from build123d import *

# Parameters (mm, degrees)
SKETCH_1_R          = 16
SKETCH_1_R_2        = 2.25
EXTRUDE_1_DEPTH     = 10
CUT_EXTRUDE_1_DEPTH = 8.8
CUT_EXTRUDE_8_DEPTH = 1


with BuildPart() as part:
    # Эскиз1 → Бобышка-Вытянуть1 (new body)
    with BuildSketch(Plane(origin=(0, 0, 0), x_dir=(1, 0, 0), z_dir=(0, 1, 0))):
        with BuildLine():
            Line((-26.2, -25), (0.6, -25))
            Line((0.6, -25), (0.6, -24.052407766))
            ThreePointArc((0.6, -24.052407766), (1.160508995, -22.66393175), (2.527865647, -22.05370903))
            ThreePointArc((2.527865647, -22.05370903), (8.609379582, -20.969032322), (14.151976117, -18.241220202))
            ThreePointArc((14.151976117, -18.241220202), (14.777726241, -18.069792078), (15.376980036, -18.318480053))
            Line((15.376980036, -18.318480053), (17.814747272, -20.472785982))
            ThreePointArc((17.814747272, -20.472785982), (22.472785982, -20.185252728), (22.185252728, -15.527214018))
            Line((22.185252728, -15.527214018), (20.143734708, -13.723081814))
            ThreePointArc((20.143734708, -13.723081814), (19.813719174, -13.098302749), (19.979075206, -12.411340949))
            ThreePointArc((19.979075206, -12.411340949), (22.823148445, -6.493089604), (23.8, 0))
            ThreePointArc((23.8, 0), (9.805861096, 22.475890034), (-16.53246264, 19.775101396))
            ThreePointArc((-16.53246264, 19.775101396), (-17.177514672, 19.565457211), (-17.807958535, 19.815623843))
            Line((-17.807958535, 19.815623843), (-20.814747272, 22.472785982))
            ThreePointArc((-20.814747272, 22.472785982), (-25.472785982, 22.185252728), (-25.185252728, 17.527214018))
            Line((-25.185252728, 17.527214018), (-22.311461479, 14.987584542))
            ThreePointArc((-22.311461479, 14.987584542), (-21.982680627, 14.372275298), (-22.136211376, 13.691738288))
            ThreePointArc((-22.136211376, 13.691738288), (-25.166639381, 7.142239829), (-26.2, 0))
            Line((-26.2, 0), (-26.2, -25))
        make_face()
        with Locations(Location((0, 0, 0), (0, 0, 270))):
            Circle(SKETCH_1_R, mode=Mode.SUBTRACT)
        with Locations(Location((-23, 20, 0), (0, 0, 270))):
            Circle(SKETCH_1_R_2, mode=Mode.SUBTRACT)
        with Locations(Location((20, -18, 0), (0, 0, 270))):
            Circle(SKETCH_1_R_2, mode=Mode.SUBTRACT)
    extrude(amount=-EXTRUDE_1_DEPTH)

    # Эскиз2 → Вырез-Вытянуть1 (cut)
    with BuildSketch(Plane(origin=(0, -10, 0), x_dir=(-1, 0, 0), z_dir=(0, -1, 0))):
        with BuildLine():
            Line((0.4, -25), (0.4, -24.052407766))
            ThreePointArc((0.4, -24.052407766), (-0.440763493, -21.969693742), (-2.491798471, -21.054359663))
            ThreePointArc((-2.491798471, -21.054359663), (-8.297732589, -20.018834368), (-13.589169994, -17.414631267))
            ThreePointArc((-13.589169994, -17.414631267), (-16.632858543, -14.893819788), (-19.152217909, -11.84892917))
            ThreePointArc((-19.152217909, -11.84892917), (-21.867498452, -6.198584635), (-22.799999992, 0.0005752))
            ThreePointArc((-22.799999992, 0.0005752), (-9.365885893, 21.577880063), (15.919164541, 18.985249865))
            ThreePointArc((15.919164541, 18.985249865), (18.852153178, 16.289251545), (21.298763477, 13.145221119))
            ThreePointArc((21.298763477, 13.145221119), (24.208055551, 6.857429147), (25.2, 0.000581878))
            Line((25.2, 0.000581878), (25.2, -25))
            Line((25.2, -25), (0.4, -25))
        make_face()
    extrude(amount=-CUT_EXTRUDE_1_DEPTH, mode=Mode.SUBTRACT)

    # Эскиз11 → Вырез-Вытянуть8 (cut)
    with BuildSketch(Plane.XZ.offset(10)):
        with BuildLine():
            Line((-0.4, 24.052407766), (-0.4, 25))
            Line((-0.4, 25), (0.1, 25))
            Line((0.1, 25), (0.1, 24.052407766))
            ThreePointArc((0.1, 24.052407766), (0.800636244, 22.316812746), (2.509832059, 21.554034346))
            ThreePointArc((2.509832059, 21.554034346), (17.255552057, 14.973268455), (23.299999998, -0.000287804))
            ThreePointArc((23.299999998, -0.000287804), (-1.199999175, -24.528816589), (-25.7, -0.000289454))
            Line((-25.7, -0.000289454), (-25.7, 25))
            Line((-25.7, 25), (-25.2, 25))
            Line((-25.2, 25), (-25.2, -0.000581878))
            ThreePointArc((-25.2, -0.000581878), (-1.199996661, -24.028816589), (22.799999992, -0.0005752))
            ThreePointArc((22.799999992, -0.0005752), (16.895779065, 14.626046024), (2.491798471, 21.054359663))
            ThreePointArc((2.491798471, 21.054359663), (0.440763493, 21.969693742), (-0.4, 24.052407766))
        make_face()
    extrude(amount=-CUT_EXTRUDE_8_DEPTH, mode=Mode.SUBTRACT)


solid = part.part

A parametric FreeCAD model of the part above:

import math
import FreeCAD as App
import Part
import Sketcher
Q = App.Units.Quantity

doc = App.newDocument("Part")
body = doc.addObject("PartDesign::Body", "Body")

# Sketch on XZ plane
sketch1 = body.newObject("Sketcher::SketchObject", "Sketch")
sketch1.AttachmentSupport = (doc.getObject("XZ_Plane"), [""])
sketch1.MapMode = "FlatFace"
sketch1.addGeometry([
    Part.LineSegment(App.Vector(-26.2, 25, 0), App.Vector(0.6, 25, 0)),  # 0
    Part.LineSegment(App.Vector(0.6, 25, 0), App.Vector(0.6, 24.1, 0)),  # 1
    Part.ArcOfCircle(Part.Circle(App.Vector(2.6, 24.1, 0), App.Vector(0, 0, 1), 2), math.radians(180), math.radians(268)),  # 2
    Part.ArcOfCircle(Part.Circle(App.Vector(1.7, 0, 0), App.Vector(0, 0, 1), 22.1), math.radians(56), math.radians(88)),  # 3
    Part.ArcOfCircle(Part.Circle(App.Vector(14.7, 19.1, 0), App.Vector(0, 0, 1), 1), math.radians(-124), math.radians(-49)),  # 4
    Part.LineSegment(App.Vector(15.4, 18.3, 0), App.Vector(17.8, 20.5, 0)),  # 5
    Part.ArcOfCircle(Part.Circle(App.Vector(20, 18, 0), App.Vector(0, 0, 1), 3.3), math.radians(-49), math.radians(131)),  # 6
    Part.LineSegment(App.Vector(22.2, 15.5, 0), App.Vector(20.1, 13.7, 0)),  # 7
    Part.ArcOfCircle(Part.Circle(App.Vector(20.8, 13, 0), App.Vector(0, 0, 1), 1), math.radians(131), math.radians(214)),  # 8
    Part.ArcOfCircle(Part.Circle(App.Vector(1.7, 0, 0), App.Vector(0, 0, 1), 22.1), math.radians(0), math.radians(34)),  # 9
    Part.ArcOfCircle(Part.Circle(App.Vector(-1.2, 0, 0), App.Vector(0, 0, 1), 25), math.radians(-128), math.radians(0)),  # 10
    Part.ArcOfCircle(Part.Circle(App.Vector(-17.1, -20.6, 0), App.Vector(0, 0, 1), 1), math.radians(52), math.radians(131)),  # 11
    Part.LineSegment(App.Vector(-17.8, -19.8, 0), App.Vector(-20.8, -22.5, 0)),  # 12
    Part.ArcOfCircle(Part.Circle(App.Vector(-23, -20, 0), App.Vector(0, 0, 1), 3.3), math.radians(131), math.radians(311)),  # 13
    Part.LineSegment(App.Vector(-25.2, -17.5, 0), App.Vector(-22.3, -15, 0)),  # 14
    Part.ArcOfCircle(Part.Circle(App.Vector(-23, -14.2, 0), App.Vector(0, 0, 1), 1), math.radians(-49), math.radians(33)),  # 15
    Part.ArcOfCircle(Part.Circle(App.Vector(-1.2, 0, 0), App.Vector(0, 0, 1), 25), math.radians(180), math.radians(213)),  # 16
    Part.LineSegment(App.Vector(-26.2, 0, 0), App.Vector(-26.2, 25, 0)),  # 17
    Part.Circle(App.Vector(20, 18, 0), App.Vector(0, 0, 1), 2.2),  # 18
    Part.Circle(App.Vector(0, 0, 0), App.Vector(0, 0, 1), 16),  # 19
    Part.Circle(App.Vector(-23, -20, 0), App.Vector(0, 0, 1), 2.2),  # 20
], False)
sketch1.addConstraint([
    Sketcher.Constraint("Coincident", 0, 2, 1, 1),
    Sketcher.Constraint("Tangent", 1, 2, 2, 1),
    Sketcher.Constraint("Tangent", 2, 2, 3, 2),
    Sketcher.Constraint("Tangent", 3, 1, 4, 1),
    Sketcher.Constraint("Tangent", 4, 2, 5, 1),
    Sketcher.Constraint("Tangent", 5, 2, 6, 2),
    Sketcher.Constraint("Tangent", 6, 1, 7, 1),
    Sketcher.Constraint("Tangent", 7, 2, 8, 1),
    Sketcher.Constraint("Tangent", 8, 2, 9, 2),
    Sketcher.Constraint("Coincident", 9, 1, 10, 2),
    Sketcher.Constraint("Tangent", 10, 1, 11, 1),
    Sketcher.Constraint("Tangent", 11, 2, 12, 1),
    Sketcher.Constraint("Tangent", 12, 2, 13, 2),
    Sketcher.Constraint("Tangent", 13, 1, 14, 1),
    Sketcher.Constraint("Tangent", 14, 2, 15, 1),
    Sketcher.Constraint("Tangent", 15, 2, 16, 2),
    Sketcher.Constraint("Coincident", 16, 1, 17, 1),
    Sketcher.Constraint("Coincident", 17, 2, 0, 1),
    Sketcher.Constraint("Horizontal", 0),
    Sketcher.Constraint("Vertical", 1),
    Sketcher.Constraint("Vertical", 17),
    Sketcher.Constraint("Coincident", 19, 3, -1, 1),
    Sketcher.Constraint("Coincident", 9, 3, 3, 3),
    Sketcher.Constraint("Coincident", 16, 3, 10, 3),
    Sketcher.Constraint("Coincident", 18, 3, 6, 3),
    Sketcher.Constraint("Coincident", 20, 3, 13, 3),
    Sketcher.Constraint("Equal", 4, 8),
    Sketcher.Constraint("Equal", 3, 9),
    Sketcher.Constraint("Equal", 8, 11),
    Sketcher.Constraint("Equal", 6, 13),
    Sketcher.Constraint("Equal", 11, 15),
    Sketcher.Constraint("Equal", 10, 16),
    Sketcher.Constraint("Equal", 18, 20),
    Sketcher.Constraint("PointOnObject", 3, 3, -1),
    Sketcher.Constraint("PointOnObject", 9, 1, -1),
    Sketcher.Constraint("PointOnObject", 16, 1, -1),
    Sketcher.Constraint("Parallel", 5, 7),
    Sketcher.Constraint("Parallel", 7, 12),
    Sketcher.Constraint("Parallel", 12, 14),
    Sketcher.Constraint("Diameter", 19, Q("32 mm")),
    Sketcher.Constraint("Radius", 2, Q("2 mm")),
    Sketcher.Constraint("Radius", 4, Q("1 mm")),
    Sketcher.Constraint("Diameter", 18, Q("4.5 mm")),
    Sketcher.Constraint("Radius", 6, Q("3.3 mm")),
    Sketcher.Constraint("DistanceY", 17, 1, 17, 2, Q("25 mm")),
    Sketcher.Constraint("DistanceX", 0, 1, 0, 2, Q("26.8 mm")),
    Sketcher.Constraint("DistanceX", -1, 1, 6, 3, Q("20 mm")),
    Sketcher.Constraint("DistanceY", -1, 1, 6, 3, Q("18 mm")),
    Sketcher.Constraint("DistanceX", 13, 3, -1, 1, Q("23 mm")),
    Sketcher.Constraint("DistanceY", 13, 3, -1, 1, Q("20 mm")),
    Sketcher.Constraint("DistanceX", -1, 1, 2, 3, Q("2.6 mm")),
    Sketcher.Constraint("DistanceX", 10, 3, -1, 1, Q("1.2 mm")),
    Sketcher.Constraint("Radius", 3, Q("22.068067 mm")),
    Sketcher.Constraint("DistanceX", 3, 3, 8, 3, Q("19.074 mm")),
    Sketcher.Constraint("DistanceY", 10, 3, -1, 1, Q("0.0288 mm")),
])
pad1 = body.newObject("PartDesign::Pad", "Pad")
pad1.Profile = sketch1
pad1.Length = 10

# Sketch on XZ plane
sketch2 = body.newObject("Sketcher::SketchObject", "Sketch001")
sketch2.AttachmentSupport = (doc.getObject("XZ_Plane"), [""])
sketch2.MapMode = "FlatFace"
sketch2.AttachmentOffset = App.Placement(App.Vector(0, 0, 10), App.Rotation())
sketch2.addGeometry([
    Part.LineSegment(App.Vector(-0.4, 24.052408, 0), App.Vector(-0.4, 25, 0)),  # 0
    Part.LineSegment(App.Vector(-0.4, 25, 0), App.Vector(-25.2, 25, 0)),  # 1
    Part.LineSegment(App.Vector(-25.2, 25, 0), App.Vector(-25.2, -0.000582, 0)),  # 2
    Part.ArcOfCircle(Part.Circle(App.Vector(-1.2, -0.0288, 0), App.Vector(0, 0, 1), 24.000017), math.radians(179.932634), math.radians(213.128403)),  # 3
    Part.ArcOfCircle(Part.Circle(App.Vector(-1.2, -0.0288, 0), App.Vector(0, 0, 1), 24.000017), math.radians(-146.871597), math.radians(-127.828361)),  # 4
    Part.ArcOfCircle(Part.Circle(App.Vector(-1.2, -0.0288, 0), App.Vector(0, 0, 1), 24.000017), math.radians(-127.828361), math.radians(0.067382)),  # 5
    Part.ArcOfCircle(Part.Circle(App.Vector(1.731933, 0, 0), App.Vector(0, 0, 1), 21.068067), math.radians(-0.001564), math.radians(34.222753)),  # 6
    Part.ArcOfCircle(Part.Circle(App.Vector(1.731933, 0, 0), App.Vector(0, 0, 1), 21.068067), math.radians(34.222753), math.radians(55.749917)),  # 7
    Part.ArcOfCircle(Part.Circle(App.Vector(1.731933, 0, 0), App.Vector(0, 0, 1), 21.068067), math.radians(55.749917), math.radians(87.933055)),  # 8
    Part.ArcOfCircle(Part.Circle(App.Vector(2.6, 24.052408, 0), App.Vector(0, 0, 1), 3), math.radians(180), math.radians(267.933055)),  # 9
], False)
sketch2.addConstraint([
    Sketcher.Constraint("Coincident", 0, 2, 1, 1),
    Sketcher.Constraint("Coincident", 1, 2, 2, 1),
    Sketcher.Constraint("Coincident", 2, 2, 3, 1),
    Sketcher.Constraint("Tangent", 3, 2, 4, 1),
    Sketcher.Constraint("Tangent", 4, 2, 5, 1),
    Sketcher.Constraint("Coincident", 5, 2, 6, 1),
    Sketcher.Constraint("Tangent", 6, 2, 7, 1),
    Sketcher.Constraint("Tangent", 7, 2, 8, 1),
    Sketcher.Constraint("Tangent", 8, 2, 9, 2),
    Sketcher.Constraint("Tangent", 9, 1, 0, 1),
    Sketcher.Constraint("Vertical", 0),
    Sketcher.Constraint("Horizontal", 1),
    Sketcher.Constraint("Vertical", 2),
    Sketcher.Constraint("Coincident", 5, 3, 3, 3),
    Sketcher.Constraint("Coincident", 8, 3, 6, 3),
    Sketcher.Constraint("PointOnObject", 6, 3, -1),
    Sketcher.Constraint("Radius", 9, Q("3 mm")),
    Sketcher.Constraint("DistanceX", 1, 2, 1, 1, Q("24.8 mm")),
    Sketcher.Constraint("DistanceY", -1, 1, 0, 2, Q("25 mm")),
    Sketcher.Constraint("DistanceX", 1, 2, 4, 3, Q("24 mm")),
    Sketcher.Constraint("DistanceX", 4, 3, 5, 2, Q("24 mm")),
    Sketcher.Constraint("DistanceX", 3, 3, -1, 1, Q("1.2 mm")),
    Sketcher.Constraint("Radius", 6, Q("21.068067 mm")),
    Sketcher.Constraint("DistanceY", 2, 2, 2, 1, Q("25.000582 mm")),
    Sketcher.Constraint("DistanceY", 3, 3, -1, 1, Q("0.0288 mm")),
    Sketcher.Constraint("DistanceX", 3, 2, 4, 2, Q("5.379599 mm")),
    Sketcher.Constraint("DistanceY", 3, 2, -1, 1, Q("13.145221 mm")),
    Sketcher.Constraint("DistanceY", -1, 1, 6, 2, Q("11.848929 mm")),
    Sketcher.Constraint("DistanceX", -1, 1, 7, 2, Q("13.58917 mm")),
])
pocket1 = body.newObject("PartDesign::Pocket", "Pocket")
pocket1.Profile = sketch2
pocket1.Length = 8.8

# Sketch on XZ plane
sketch3 = body.newObject("Sketcher::SketchObject", "Sketch002")
sketch3.AttachmentSupport = (doc.getObject("XZ_Plane"), [""])
sketch3.MapMode = "FlatFace"
sketch3.AttachmentOffset = App.Placement(App.Vector(0, 0, 10), App.Rotation())
sketch3.addGeometry([
    Part.LineSegment(App.Vector(-0.4, 25, 0), App.Vector(-0.4, 24.052408, 0)),  # 0
    Part.ArcOfCircle(Part.Circle(App.Vector(2.6, 24.052408, 0), App.Vector(0, 0, 1), 3), math.radians(180), math.radians(267.933055)),  # 1
    Part.ArcOfCircle(Part.Circle(App.Vector(1.731933, 0, 0), App.Vector(0, 0, 1), 21.068067), math.radians(-0.001564), math.radians(87.933055)),  # 2
    Part.ArcOfCircle(Part.Circle(App.Vector(-1.2, -0.0288, 0), App.Vector(0, 0, 1), 24.000017), math.radians(179.932634), math.radians(360.067382)),  # 3
    Part.LineSegment(App.Vector(-25.2, -0.000582, 0), App.Vector(-25.2, 25, 0)),  # 4
    Part.LineSegment(App.Vector(-25.2, 25, 0), App.Vector(-25.7, 25, 0)),  # 5
    Part.LineSegment(App.Vector(-25.7, 25, 0), App.Vector(-25.7, -0.000289, 0)),  # 6
    Part.ArcOfCircle(Part.Circle(App.Vector(-1.2, -0.0288, 0), App.Vector(0, 0, 1), 24.500017), math.radians(179.933325), math.radians(360.066679)),  # 7
    Part.ArcOfCircle(Part.Circle(App.Vector(1.731933, 0, 0), App.Vector(0, 0, 1), 21.568067), math.radians(-0.000765), math.radians(87.933055)),  # 8
    Part.ArcOfCircle(Part.Circle(App.Vector(2.6, 24.052408, 0), App.Vector(0, 0, 1), 2.5), math.radians(-180), math.radians(-92.066945)),  # 9
    Part.LineSegment(App.Vector(0.1, 24.052408, 0), App.Vector(0.1, 25, 0)),  # 10
    Part.LineSegment(App.Vector(0.1, 25, 0), App.Vector(-0.4, 25, 0)),  # 11
], False)
sketch3.addConstraint([
    Sketcher.Constraint("Tangent", 0, 2, 1, 1),
    Sketcher.Constraint("Tangent", 1, 2, 2, 2),
    Sketcher.Constraint("Coincident", 2, 1, 3, 2),
    Sketcher.Constraint("Coincident", 3, 1, 4, 1),
    Sketcher.Constraint("Coincident", 4, 2, 5, 1),
    Sketcher.Constraint("Coincident", 5, 2, 6, 1),
    Sketcher.Constraint("Coincident", 6, 2, 7, 1),
    Sketcher.Constraint("Coincident", 7, 2, 8, 1),
    Sketcher.Constraint("Tangent", 8, 2, 9, 2),
    Sketcher.Constraint("Tangent", 9, 1, 10, 1),
    Sketcher.Constraint("Coincident", 10, 2, 11, 1),
    Sketcher.Constraint("Coincident", 11, 2, 0, 1),
    Sketcher.Constraint("Vertical", 0),
    Sketcher.Constraint("Vertical", 4),
    Sketcher.Constraint("Horizontal", 5),
    Sketcher.Constraint("Vertical", 6),
    Sketcher.Constraint("Vertical", 10),
    Sketcher.Constraint("Horizontal", 11),
    Sketcher.Constraint("Coincident", 7, 3, 3, 3),
    Sketcher.Constraint("Coincident", 8, 3, 2, 3),
    Sketcher.Constraint("Coincident", 9, 3, 1, 3),
    Sketcher.Constraint("PointOnObject", 2, 3, -1),
    Sketcher.Constraint("Horizontal", 6, 2, 7, 2),
    Sketcher.Constraint("Horizontal", 5, 2, 10, 2),
    Sketcher.Constraint("Equal", 5, 11),
    Sketcher.Constraint("Radius", 1, Q("3 mm")),
    Sketcher.Constraint("Radius", 9, Q("2.5 mm")),
    Sketcher.Constraint("DistanceY", -1, 1, 4, 2, Q("25 mm")),
    Sketcher.Constraint("DistanceX", 3, 3, 2, 1, Q("24 mm")),
    Sketcher.Constraint("DistanceX", -1, 1, 1, 3, Q("2.6 mm")),
    Sketcher.Constraint("DistanceX", 3, 3, -1, 1, Q("1.2 mm")),
    Sketcher.Constraint("Radius", 2, Q("21.068067 mm")),
    Sketcher.Constraint("DistanceY", 4, 1, 4, 2, Q("25.000582 mm")),
    Sketcher.Constraint("DistanceY", 6, 2, 6, 1, Q("25.000289 mm")),
    Sketcher.Constraint("DistanceY", 3, 3, -1, 1, Q("0.0288 mm")),
])
pocket2 = body.newObject("PartDesign::Pocket", "Pocket001")
pocket2.Profile = sketch3
pocket2.Length = 1

doc.recompute()
